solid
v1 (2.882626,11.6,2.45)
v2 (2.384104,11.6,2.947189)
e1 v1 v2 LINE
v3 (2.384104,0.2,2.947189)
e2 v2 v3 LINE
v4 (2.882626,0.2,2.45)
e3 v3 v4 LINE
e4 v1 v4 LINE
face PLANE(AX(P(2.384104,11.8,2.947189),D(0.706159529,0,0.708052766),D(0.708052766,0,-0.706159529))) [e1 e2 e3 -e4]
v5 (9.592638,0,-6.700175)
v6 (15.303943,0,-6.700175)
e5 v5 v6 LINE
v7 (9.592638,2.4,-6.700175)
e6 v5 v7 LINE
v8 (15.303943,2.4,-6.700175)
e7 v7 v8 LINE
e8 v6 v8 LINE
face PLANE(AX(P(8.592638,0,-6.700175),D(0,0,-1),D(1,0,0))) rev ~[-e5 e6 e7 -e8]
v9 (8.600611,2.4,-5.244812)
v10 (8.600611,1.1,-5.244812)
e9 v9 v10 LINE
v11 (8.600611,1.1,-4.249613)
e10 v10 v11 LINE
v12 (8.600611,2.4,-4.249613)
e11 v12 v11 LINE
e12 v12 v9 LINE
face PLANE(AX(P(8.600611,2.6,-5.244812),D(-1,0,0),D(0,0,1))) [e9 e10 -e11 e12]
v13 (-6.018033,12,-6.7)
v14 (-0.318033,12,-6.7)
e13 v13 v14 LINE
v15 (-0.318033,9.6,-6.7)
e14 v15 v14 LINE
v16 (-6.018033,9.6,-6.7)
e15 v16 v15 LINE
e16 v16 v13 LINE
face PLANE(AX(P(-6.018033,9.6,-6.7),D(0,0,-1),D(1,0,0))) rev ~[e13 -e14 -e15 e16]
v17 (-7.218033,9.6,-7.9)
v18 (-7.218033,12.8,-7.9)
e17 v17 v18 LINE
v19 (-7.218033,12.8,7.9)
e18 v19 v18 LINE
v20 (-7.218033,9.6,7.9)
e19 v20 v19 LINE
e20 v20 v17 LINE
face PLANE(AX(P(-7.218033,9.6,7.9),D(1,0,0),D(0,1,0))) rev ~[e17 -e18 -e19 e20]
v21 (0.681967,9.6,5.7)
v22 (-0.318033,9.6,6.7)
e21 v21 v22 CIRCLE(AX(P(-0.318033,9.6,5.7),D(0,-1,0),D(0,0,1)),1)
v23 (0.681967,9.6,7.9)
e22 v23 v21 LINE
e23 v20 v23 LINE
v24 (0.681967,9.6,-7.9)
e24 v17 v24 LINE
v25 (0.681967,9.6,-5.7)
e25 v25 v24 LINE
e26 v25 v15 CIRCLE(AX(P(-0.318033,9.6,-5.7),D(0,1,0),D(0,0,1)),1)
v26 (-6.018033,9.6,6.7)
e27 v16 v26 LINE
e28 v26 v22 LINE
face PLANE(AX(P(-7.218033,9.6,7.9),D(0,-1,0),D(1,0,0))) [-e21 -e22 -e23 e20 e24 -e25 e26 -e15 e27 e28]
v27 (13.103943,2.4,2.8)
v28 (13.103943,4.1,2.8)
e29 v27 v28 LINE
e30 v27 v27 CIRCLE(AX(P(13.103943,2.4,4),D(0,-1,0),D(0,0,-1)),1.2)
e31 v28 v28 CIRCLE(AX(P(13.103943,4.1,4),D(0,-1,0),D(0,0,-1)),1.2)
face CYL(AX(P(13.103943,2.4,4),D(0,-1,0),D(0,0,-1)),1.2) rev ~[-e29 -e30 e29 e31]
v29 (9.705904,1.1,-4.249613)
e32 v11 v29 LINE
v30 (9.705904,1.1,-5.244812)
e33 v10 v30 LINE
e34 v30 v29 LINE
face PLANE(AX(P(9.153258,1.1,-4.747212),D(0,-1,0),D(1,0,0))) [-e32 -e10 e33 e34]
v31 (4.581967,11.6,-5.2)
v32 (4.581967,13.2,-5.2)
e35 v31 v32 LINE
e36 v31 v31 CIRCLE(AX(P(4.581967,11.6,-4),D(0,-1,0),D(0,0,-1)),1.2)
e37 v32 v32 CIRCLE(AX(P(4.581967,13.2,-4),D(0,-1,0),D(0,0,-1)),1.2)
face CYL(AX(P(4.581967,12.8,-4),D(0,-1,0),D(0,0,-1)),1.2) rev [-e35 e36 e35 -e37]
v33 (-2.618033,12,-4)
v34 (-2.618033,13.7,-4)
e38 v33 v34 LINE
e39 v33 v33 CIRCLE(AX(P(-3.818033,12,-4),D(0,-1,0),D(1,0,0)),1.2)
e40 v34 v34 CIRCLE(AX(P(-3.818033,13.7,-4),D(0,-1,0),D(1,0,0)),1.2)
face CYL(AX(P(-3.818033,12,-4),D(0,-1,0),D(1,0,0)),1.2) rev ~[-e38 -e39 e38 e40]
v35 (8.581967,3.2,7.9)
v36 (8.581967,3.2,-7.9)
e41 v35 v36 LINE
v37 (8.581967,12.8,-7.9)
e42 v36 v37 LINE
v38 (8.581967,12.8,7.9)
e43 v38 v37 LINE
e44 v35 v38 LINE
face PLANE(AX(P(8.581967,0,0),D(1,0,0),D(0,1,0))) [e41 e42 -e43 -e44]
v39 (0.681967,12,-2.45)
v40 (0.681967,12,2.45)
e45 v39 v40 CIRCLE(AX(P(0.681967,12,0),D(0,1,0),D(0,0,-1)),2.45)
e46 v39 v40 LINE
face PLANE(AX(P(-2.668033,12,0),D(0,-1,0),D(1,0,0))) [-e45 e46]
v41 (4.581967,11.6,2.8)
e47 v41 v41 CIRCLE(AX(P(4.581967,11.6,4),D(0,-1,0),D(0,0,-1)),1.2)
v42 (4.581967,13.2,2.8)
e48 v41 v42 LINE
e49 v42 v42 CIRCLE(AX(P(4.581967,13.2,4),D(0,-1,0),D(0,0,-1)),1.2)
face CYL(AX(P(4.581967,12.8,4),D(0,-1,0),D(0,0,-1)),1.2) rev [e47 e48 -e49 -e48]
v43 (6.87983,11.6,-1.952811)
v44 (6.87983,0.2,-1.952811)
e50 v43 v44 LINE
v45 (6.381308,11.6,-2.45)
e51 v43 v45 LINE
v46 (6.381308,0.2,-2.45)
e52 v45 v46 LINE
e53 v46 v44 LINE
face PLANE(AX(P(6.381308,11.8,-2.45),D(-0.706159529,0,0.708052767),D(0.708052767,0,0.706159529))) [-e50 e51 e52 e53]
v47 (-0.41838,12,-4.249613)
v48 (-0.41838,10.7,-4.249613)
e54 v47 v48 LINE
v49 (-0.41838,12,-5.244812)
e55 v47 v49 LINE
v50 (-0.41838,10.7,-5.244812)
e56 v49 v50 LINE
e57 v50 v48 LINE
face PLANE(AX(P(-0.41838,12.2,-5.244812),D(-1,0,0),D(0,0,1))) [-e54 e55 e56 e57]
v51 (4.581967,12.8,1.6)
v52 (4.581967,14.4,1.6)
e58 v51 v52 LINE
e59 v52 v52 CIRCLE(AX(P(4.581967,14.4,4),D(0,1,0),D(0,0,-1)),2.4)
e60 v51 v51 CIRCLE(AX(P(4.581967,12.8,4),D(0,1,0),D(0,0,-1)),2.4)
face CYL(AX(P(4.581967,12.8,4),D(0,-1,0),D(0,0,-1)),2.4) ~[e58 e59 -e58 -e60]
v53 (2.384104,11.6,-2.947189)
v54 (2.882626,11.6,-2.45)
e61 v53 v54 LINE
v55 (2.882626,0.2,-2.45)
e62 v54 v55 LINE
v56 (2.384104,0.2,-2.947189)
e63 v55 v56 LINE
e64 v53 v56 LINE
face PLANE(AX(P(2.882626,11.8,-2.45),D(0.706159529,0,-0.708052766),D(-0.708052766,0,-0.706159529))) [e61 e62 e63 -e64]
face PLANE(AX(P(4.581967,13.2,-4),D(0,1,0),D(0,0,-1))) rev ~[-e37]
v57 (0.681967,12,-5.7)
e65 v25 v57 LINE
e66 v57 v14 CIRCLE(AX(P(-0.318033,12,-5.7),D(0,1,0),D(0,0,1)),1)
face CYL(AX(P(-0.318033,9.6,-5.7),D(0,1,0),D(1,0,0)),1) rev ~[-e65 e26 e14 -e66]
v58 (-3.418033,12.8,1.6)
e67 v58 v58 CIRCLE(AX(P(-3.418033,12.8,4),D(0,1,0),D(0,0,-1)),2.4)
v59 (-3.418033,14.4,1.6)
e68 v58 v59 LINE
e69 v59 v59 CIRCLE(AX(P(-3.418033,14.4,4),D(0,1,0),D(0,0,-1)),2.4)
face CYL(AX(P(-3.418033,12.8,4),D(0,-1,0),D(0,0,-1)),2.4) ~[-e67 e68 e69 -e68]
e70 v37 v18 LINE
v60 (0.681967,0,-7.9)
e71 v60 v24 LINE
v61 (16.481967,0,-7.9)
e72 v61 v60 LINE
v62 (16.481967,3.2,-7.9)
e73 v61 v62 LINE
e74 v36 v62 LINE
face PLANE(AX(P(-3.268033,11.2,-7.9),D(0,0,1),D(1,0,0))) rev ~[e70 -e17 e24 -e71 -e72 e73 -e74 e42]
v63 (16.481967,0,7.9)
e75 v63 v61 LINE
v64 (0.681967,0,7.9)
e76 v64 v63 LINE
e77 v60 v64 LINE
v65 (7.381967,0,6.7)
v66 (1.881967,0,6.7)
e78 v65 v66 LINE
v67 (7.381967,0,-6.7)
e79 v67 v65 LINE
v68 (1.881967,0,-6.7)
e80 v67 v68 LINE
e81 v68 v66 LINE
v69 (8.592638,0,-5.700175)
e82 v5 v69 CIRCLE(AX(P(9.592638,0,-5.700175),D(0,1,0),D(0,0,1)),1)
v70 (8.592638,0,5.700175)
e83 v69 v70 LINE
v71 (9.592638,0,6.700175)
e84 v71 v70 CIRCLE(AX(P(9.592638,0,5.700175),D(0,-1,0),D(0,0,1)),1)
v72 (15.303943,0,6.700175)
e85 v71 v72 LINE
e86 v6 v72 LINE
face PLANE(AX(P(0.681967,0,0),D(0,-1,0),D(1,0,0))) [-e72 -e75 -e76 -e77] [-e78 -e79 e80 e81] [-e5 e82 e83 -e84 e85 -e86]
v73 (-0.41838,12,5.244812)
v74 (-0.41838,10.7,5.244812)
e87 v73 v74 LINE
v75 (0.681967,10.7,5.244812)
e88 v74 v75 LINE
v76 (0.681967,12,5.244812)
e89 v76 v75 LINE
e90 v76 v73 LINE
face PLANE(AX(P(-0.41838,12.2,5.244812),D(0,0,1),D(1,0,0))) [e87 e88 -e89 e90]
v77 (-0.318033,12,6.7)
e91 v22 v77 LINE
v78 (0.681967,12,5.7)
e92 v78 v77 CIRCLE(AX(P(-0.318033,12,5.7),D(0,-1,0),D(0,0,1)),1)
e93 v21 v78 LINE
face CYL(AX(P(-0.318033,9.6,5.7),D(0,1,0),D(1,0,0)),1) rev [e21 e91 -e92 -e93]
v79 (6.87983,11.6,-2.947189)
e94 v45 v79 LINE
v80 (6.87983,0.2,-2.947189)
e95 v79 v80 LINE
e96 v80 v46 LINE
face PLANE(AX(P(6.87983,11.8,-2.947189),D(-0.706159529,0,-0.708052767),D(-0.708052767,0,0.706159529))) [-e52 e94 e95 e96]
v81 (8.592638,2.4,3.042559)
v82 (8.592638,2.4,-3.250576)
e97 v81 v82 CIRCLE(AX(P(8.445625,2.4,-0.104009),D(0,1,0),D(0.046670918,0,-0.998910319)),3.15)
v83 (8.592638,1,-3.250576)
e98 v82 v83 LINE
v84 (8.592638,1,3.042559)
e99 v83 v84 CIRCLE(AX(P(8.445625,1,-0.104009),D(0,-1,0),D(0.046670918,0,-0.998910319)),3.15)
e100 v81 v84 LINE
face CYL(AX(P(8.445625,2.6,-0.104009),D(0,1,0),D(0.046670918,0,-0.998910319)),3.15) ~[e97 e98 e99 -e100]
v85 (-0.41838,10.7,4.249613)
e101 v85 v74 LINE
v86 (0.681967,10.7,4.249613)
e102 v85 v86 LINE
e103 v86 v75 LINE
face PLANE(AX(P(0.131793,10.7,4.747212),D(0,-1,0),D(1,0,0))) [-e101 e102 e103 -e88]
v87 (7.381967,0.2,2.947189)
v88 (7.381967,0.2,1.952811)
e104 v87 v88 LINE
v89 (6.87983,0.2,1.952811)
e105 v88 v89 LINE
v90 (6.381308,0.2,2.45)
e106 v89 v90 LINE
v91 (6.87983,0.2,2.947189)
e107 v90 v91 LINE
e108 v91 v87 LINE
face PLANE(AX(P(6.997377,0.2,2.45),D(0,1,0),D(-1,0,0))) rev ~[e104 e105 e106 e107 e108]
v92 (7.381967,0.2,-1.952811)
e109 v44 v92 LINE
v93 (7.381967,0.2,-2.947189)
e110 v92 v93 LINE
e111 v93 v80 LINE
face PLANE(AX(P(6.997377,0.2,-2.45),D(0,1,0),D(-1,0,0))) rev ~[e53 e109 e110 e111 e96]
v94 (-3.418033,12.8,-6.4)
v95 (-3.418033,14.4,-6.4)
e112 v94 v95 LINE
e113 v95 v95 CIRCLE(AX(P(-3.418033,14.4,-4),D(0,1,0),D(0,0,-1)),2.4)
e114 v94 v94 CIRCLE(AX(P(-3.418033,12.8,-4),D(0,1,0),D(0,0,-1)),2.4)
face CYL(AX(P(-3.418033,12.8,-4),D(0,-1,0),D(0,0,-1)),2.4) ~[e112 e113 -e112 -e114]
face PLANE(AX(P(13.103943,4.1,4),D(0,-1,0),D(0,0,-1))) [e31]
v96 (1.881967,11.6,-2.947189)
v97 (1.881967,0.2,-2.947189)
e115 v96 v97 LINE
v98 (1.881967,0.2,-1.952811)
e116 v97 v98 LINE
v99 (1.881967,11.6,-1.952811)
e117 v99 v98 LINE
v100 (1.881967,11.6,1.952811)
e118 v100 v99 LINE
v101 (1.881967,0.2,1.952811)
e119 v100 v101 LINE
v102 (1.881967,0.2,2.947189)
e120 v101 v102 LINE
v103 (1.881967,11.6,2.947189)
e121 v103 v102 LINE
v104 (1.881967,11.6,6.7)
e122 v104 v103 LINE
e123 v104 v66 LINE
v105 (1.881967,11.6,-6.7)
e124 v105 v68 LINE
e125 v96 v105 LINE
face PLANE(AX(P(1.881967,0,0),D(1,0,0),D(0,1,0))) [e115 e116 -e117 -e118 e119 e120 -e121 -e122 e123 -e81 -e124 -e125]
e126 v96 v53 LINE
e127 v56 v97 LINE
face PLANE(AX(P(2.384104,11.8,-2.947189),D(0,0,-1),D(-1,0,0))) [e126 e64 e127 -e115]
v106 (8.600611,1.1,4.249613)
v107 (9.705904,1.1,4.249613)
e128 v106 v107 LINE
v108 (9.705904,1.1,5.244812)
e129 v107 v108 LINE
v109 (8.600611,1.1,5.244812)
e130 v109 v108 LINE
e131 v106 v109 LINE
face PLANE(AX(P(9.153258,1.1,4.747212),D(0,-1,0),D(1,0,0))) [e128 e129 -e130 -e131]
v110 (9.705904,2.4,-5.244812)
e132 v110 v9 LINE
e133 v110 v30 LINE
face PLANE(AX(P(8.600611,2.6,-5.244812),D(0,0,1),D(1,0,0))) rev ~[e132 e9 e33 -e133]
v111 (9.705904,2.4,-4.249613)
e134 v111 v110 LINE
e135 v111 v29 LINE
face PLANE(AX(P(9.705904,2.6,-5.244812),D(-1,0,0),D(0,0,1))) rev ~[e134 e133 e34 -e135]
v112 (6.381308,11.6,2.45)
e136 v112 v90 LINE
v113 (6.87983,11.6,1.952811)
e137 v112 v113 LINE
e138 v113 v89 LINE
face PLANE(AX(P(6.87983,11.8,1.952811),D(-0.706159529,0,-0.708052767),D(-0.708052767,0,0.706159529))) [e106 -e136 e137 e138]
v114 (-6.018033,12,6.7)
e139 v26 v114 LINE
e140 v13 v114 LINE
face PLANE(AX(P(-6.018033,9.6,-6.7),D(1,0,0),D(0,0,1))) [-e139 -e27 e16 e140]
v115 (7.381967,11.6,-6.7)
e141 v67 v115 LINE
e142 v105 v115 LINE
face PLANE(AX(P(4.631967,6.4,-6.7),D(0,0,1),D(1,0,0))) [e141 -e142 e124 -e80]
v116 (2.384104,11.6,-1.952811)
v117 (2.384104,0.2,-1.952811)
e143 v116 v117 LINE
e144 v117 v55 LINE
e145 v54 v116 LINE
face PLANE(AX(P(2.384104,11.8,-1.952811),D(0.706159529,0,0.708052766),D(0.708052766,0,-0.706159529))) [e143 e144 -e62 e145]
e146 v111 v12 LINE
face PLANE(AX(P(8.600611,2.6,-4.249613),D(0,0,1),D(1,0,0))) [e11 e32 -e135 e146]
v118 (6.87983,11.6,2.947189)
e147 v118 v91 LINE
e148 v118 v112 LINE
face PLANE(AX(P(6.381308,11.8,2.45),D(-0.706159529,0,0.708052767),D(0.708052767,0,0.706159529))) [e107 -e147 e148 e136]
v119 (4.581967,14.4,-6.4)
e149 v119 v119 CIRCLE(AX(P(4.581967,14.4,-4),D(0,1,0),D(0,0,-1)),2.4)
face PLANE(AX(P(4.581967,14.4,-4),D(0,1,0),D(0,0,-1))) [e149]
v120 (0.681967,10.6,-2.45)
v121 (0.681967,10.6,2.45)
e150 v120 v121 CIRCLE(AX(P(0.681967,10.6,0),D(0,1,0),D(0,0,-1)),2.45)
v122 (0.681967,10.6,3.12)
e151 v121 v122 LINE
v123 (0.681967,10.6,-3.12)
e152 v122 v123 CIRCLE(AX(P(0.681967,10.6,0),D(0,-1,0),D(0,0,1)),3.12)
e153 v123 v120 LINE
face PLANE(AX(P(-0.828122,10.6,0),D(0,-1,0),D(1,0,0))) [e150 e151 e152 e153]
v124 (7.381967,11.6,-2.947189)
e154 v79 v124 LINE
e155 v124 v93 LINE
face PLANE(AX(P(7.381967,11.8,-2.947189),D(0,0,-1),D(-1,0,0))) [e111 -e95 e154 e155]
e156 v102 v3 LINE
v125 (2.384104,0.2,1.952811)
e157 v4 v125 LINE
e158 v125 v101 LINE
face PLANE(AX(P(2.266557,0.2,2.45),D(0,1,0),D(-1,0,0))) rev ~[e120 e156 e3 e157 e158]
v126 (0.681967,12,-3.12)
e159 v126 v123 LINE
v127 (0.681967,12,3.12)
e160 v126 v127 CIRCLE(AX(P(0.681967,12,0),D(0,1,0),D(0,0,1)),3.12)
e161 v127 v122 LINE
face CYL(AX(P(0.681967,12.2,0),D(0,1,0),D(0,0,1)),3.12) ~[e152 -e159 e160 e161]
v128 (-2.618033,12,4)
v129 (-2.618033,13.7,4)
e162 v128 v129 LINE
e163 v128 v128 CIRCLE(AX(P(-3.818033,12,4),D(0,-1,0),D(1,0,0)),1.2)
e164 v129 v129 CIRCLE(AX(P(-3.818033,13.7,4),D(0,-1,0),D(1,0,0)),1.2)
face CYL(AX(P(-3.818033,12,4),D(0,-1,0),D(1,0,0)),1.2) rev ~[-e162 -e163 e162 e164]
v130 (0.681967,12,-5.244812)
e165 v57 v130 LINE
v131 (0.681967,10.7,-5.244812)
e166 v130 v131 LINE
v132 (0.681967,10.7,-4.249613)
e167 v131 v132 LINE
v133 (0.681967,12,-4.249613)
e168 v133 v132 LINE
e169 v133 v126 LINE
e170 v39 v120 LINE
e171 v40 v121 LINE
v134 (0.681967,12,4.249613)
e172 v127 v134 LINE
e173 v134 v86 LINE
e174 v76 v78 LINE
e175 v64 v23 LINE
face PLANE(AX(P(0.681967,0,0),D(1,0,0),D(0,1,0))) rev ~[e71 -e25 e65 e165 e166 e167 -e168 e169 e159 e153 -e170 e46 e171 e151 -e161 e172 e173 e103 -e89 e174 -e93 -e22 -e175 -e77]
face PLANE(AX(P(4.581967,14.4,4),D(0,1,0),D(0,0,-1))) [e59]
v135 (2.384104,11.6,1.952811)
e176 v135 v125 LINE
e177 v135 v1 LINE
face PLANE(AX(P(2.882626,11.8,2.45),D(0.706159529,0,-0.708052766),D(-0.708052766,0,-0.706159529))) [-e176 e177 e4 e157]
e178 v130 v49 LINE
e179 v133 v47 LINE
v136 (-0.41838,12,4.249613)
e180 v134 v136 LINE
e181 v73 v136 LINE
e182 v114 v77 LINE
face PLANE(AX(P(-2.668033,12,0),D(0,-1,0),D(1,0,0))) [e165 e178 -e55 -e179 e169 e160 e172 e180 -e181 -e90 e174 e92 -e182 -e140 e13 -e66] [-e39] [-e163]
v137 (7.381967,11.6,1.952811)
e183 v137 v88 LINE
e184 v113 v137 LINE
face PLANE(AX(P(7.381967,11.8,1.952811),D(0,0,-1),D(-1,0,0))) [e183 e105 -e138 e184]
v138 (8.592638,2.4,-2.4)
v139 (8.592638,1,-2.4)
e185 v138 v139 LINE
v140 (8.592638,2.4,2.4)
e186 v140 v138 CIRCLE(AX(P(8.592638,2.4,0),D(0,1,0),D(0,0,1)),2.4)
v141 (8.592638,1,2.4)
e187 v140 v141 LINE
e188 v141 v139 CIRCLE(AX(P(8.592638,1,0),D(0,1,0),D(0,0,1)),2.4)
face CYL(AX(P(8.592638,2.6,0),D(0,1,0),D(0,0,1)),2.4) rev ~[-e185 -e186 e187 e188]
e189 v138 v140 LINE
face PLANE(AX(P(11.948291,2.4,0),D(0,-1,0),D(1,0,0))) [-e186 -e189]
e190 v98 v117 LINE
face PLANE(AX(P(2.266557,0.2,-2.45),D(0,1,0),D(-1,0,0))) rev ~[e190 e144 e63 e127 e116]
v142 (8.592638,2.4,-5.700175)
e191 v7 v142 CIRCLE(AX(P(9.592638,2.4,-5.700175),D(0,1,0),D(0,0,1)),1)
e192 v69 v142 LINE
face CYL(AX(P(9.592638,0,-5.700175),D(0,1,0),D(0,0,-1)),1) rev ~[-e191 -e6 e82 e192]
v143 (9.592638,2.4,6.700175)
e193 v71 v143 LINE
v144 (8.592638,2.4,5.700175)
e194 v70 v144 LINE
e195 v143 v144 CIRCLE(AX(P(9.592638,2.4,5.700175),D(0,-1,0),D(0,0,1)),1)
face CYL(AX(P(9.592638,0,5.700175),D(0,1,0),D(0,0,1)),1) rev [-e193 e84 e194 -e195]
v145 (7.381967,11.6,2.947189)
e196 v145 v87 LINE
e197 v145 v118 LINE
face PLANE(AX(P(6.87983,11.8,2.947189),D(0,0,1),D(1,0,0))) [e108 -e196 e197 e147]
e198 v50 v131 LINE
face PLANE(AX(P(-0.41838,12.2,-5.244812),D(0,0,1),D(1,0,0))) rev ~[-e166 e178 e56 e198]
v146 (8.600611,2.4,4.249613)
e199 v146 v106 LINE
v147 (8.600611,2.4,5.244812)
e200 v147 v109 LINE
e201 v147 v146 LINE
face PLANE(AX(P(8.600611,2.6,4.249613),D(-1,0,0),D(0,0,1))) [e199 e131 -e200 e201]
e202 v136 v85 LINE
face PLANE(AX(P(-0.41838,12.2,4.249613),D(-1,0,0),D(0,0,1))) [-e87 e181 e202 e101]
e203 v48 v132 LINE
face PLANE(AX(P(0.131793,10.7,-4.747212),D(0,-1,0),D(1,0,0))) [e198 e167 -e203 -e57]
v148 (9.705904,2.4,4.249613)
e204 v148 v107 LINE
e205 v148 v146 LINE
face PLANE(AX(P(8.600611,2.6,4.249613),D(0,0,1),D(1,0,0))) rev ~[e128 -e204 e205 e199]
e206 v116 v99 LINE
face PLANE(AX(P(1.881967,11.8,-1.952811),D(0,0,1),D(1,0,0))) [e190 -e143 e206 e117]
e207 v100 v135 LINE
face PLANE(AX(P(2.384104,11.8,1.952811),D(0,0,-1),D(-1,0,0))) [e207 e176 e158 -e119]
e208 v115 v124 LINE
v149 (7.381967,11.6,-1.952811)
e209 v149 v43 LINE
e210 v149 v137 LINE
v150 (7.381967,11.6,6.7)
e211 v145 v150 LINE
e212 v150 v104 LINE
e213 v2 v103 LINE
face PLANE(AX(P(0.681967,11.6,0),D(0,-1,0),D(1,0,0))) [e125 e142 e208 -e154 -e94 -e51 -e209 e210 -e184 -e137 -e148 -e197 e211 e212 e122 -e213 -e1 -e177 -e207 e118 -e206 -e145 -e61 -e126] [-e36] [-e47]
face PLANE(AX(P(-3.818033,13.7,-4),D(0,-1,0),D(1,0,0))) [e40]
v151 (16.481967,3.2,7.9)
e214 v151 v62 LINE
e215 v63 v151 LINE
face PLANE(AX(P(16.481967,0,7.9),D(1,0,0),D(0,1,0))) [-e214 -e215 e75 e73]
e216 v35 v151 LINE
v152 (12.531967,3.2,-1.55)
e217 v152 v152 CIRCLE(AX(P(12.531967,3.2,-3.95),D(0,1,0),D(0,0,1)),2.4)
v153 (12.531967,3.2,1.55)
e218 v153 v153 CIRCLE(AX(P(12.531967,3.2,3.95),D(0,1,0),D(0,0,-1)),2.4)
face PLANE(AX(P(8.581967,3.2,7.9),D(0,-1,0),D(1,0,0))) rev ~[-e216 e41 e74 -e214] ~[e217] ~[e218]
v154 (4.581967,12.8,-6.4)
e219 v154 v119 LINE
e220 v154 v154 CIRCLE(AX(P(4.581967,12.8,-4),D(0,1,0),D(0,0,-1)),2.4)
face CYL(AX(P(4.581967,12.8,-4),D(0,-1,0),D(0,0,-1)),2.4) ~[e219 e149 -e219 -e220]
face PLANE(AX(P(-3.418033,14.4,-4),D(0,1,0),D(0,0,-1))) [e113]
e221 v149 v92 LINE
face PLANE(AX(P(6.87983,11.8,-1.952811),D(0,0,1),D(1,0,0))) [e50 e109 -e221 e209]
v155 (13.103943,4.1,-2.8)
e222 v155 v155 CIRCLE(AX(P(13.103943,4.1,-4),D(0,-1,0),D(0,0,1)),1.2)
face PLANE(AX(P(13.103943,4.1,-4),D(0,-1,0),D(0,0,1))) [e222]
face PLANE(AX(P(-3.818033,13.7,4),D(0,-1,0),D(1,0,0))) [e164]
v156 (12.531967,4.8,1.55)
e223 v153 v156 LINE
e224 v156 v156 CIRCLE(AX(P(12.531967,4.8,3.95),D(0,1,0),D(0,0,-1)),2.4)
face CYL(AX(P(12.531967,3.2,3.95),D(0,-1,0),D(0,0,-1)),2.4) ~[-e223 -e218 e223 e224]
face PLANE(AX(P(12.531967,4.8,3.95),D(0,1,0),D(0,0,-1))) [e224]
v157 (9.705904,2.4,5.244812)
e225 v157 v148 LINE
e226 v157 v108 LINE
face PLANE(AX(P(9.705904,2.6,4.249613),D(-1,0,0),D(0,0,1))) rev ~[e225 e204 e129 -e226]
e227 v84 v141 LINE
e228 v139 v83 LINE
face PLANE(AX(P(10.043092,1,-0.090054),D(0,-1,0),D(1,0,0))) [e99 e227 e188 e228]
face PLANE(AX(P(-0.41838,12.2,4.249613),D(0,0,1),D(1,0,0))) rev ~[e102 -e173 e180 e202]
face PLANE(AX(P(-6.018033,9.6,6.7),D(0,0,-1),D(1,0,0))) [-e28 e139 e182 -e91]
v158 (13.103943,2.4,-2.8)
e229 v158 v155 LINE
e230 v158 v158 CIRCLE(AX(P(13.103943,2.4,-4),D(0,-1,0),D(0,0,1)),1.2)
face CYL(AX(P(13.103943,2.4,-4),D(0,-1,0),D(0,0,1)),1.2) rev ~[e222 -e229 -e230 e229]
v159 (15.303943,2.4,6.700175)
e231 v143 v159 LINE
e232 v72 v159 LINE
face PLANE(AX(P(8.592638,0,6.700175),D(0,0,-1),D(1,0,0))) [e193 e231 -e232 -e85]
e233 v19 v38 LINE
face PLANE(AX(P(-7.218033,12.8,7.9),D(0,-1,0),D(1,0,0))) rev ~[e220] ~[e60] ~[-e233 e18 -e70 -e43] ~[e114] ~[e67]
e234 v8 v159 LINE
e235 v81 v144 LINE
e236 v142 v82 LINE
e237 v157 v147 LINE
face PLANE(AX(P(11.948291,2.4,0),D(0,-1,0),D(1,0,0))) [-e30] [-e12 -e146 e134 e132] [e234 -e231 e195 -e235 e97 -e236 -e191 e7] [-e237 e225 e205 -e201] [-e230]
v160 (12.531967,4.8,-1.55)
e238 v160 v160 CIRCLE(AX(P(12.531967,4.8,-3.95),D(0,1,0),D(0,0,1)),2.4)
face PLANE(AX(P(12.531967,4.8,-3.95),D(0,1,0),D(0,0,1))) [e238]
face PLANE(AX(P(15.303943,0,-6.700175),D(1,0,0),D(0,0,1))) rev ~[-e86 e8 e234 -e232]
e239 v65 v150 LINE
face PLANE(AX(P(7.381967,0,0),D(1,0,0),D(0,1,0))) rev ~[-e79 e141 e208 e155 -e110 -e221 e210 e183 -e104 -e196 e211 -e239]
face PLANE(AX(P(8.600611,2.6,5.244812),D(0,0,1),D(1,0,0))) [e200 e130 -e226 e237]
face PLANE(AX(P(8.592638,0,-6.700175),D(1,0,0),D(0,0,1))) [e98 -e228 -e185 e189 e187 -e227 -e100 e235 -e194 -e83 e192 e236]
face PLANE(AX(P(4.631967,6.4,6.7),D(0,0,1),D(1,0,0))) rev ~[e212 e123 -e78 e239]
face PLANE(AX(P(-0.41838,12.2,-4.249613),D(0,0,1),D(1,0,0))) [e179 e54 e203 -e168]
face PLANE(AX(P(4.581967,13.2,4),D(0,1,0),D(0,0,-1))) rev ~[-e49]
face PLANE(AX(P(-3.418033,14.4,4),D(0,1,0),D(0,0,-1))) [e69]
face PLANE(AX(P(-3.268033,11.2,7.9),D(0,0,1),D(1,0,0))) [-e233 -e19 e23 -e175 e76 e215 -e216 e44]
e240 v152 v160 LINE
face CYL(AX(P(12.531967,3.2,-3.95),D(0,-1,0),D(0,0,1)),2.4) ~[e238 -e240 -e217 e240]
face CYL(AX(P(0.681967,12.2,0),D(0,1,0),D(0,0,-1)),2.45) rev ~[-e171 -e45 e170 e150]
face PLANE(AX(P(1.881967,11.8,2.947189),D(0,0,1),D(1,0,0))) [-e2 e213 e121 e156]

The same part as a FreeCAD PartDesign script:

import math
import FreeCAD as App
import Part
import Sketcher
from FreeCAD import Vector


def edges_at(feature, points):
    """Names of the edges that pass closest to the given points."""
    edges = feature.Shape.Edges
    near = lambda p: min(range(len(edges)), key=lambda i: edges[i].distToShape(Part.Vertex(*p))[0])
    return sorted({f"Edge{near(p) + 1}" for p in points})


def faces_at(feature, points):
    """Names of the faces that lie closest to the given points."""
    faces = feature.Shape.Faces
    near = lambda p: min(range(len(faces)), key=lambda i: faces[i].distToShape(Part.Vertex(*p))[0])
    return sorted({f"Face{near(p) + 1}" for p in points})


def add_polygon(sketch, points):
    """Adds a closed chain of lines whose ends are joined by coincident constraints."""
    first, n = sketch.GeometryCount, len(points)
    for a, b in zip(points, points[1:] + points[:1]):
        sketch.addGeometry(Part.LineSegment(App.Vector(*a, 0), App.Vector(*b, 0)), False)
    for i in range(n):
        sketch.addConstraint(Sketcher.Constraint("Coincident", first + i, 2, first + (i + 1) % n, 1))

doc = App.newDocument("Part")
body = doc.addObject("PartDesign::Body", "Body")

# Sketch on XY plane
sketch1 = doc.addObject("Sketcher::SketchObject", "Sketch")
body.addObject(sketch1)
sketch1.AttachmentSupport = (doc.XY_Plane, [""])
sketch1.MapMode = "FlatFace"
add_polygon(sketch1, [(1, 13), (1, 0), (9, 0), (9, 13)])  # lines 0-3
sketch1.addConstraint([
    Sketcher.Constraint("Vertical", 0),
    Sketcher.Constraint("Horizontal", 1),
    Sketcher.Constraint("Vertical", 2),
    Sketcher.Constraint("Horizontal", 3),
    Sketcher.Constraint("PointOnObject", 0, 2, -1),
    Sketcher.Constraint("DistanceX", 1, 1, 1, 2, 7.9),
    Sketcher.Constraint("DistanceY", 0, 2, 0, 1, 12.8),
    Sketcher.Constraint("DistanceX", -1, 1, 0, 2, 0.681967),
])
pad1 = doc.addObject("PartDesign::Pad", "Pad")
body.addObject(pad1)
pad1.Profile = sketch1
pad1.Length = 15.8
pad1.Midplane = True

# Sketch on XZ plane
sketch2 = doc.addObject("Sketcher::SketchObject", "Sketch001")
body.addObject(sketch2)
sketch2.AttachmentSupport = (doc.XZ_Plane, [""])
sketch2.MapMode = "FlatFace"
sketch2.AttachmentOffset = App.Placement(Vector(0, 0, -12.8), App.Rotation())
sketch2.addGeometry(Part.Circle(Vector(4.6, -4, 0), Vector(0, 0, 1), 2.4), False)
sketch2.addConstraint([
    Sketcher.Constraint("Diameter", 0, 4.8),
    Sketcher.Constraint("DistanceY", 0, 3, -1, 1, 4.0),
    Sketcher.Constraint("DistanceX", -1, 1, 0, 3, 4.581967),
])
pad2 = doc.addObject("PartDesign::Pad", "Pad001")
body.addObject(pad2)
pad2.Profile = sketch2
pad2.Length = 1.6
pad2.Reversed = True
doc.recompute()

linearpattern = doc.addObject("PartDesign::LinearPattern", "LinearPattern")
body.addObject(linearpattern)
linearpattern.Originals = [pad2]
linearpattern.Direction = (doc.Z_Axis, [""])
linearpattern.Mode = "offset"
linearpattern.Offset = 8
linearpattern.Occurrences = 2
body.Tip = linearpattern
doc.recompute()

thickness = doc.addObject("PartDesign::Thickness", "Thickness")
body.addObject(thickness)
thickness.Base = (linearpattern, faces_at(linearpattern, [(4.632, 0, 0)]))
thickness.Value = 1.2
thickness.Reversed = True
thickness.Join = "Intersection"

# Sketch on XZ plane
sketch3 = doc.addObject("Sketcher::SketchObject", "Sketch002")
body.addObject(sketch3)
sketch3.AttachmentSupport = (doc.XZ_Plane, [""])
sketch3.MapMode = "FlatFace"
sketch3.AttachmentOffset = App.Placement(Vector(0, 0, -11.8), App.Rotation())
add_polygon(sketch3, [(1.9, 2.9), (1.9, 2), (2.4, 2), (2.9, 2.5), (2.4, 2.9)])  # lines 0-4
add_polygon(sketch3, [(6.9, 2.9), (6.4, 2.5), (6.9, 2), (7.4, 2), (7.4, 2.9)])  # lines 5-9
add_polygon(sketch3, [(2.4, -2), (1.9, -2), (1.9, -2.9), (2.4, -2.9), (2.9, -2.5)])  # lines 10-14
add_polygon(sketch3, [(7.4, -2.9), (7.4, -2), (6.9, -2), (6.4, -2.5), (6.9, -2.9)])  # lines 15-19
sketch3.addConstraint([
    Sketcher.Constraint("Vertical", 0),
    Sketcher.Constraint("Horizontal", 1),
    Sketcher.Constraint("Horizontal", 4),
    Sketcher.Constraint("Horizontal", 7),
    Sketcher.Constraint("Vertical", 8),
    Sketcher.Constraint("Horizontal", 9),
    Sketcher.Constraint("Horizontal", 10),
    Sketcher.Constraint("Vertical", 11),
    Sketcher.Constraint("Horizontal", 12),
    Sketcher.Constraint("Vertical", 15),
    Sketcher.Constraint("Horizontal", 16),
    Sketcher.Constraint("Horizontal", 19),
    Sketcher.Constraint("Symmetric", 0, 2, 10, 2, -1),
    Sketcher.Constraint("Symmetric", 3, 2, 12, 2, -1),
    Sketcher.Constraint("Symmetric", 2, 2, 13, 2, -1),
    Sketcher.Constraint("Symmetric", 7, 2, 15, 2, -1),
    Sketcher.Constraint("Symmetric", 5, 2, 17, 2, -1),
    Sketcher.Constraint("Symmetric", 9, 2, 18, 2, -1),
    Sketcher.Constraint("Parallel", 2, 5),
    Sketcher.Constraint("Parallel", 3, 6),
    Sketcher.Constraint("Parallel", 5, 13),
    Sketcher.Constraint("Parallel", 6, 14),
    Sketcher.Constraint("Parallel", 13, 17),
    Sketcher.Constraint("Horizontal", 2, 2, 5, 2),
    Sketcher.Constraint("Horizontal", 1, 2, 6, 2),
    Sketcher.Constraint("Horizontal", 4, 2, 8, 2),
    Sketcher.Constraint("Vertical", 1, 2, 3, 2),
    Sketcher.Constraint("Equal", 4, 7),
    Sketcher.Constraint("DistanceY", 10, 2, 4, 2, 4.9),
    Sketcher.Constraint("DistanceX", 1, 1, 1, 2, 0.502137),
    Sketcher.Constraint("DistanceY", 0, 2, 0, 1, 0.994377),
    Sketcher.Constraint("DistanceX", -1, 1, 5, 2, 6.381308),
    Sketcher.Constraint("DistanceX", -1, 1, 6, 2, 6.87983),
    Sketcher.Constraint("DistanceX", 0, 2, 5, 2, 4.499341),
])
pad3 = doc.addObject("PartDesign::Pad", "Pad002")
body.addObject(pad3)
pad3.Profile = sketch3
pad3.Length = 11.6

# Sketch on XY plane
sketch4 = doc.addObject("Sketcher::SketchObject", "Sketch003")
body.addObject(sketch4)
sketch4.AttachmentSupport = (doc.XY_Plane, [""])
sketch4.MapMode = "FlatFace"
sketch4.AttachmentOffset = App.Placement(Vector(0, 0, 7.9), App.Rotation())
add_polygon(sketch4, [(-7.2, 12.8), (-7.2, 9.6), (0.7, 9.6), (0.7, 12.8)])  # lines 0-3
add_polygon(sketch4, [(8.6, 3.2), (8.6, 0), (16.5, 0), (16.5, 3.2)])  # lines 4-7
sketch4.addConstraint([
    Sketcher.Constraint("Vertical", 0),
    Sketcher.Constraint("Horizontal", 1),
    Sketcher.Constraint("Vertical", 2),
    Sketcher.Constraint("Horizontal", 3),
    Sketcher.Constraint("Vertical", 4),
    Sketcher.Constraint("Horizontal", 5),
    Sketcher.Constraint("Vertical", 6),
    Sketcher.Constraint("Horizontal", 7),
    Sketcher.Constraint("PointOnObject", 4, 2, -1),
    Sketcher.Constraint("Equal", 3, 5),
    Sketcher.Constraint("Equal", 2, 4),
    Sketcher.Constraint("DistanceX", 1, 1, 1, 2, 7.9),
    Sketcher.Constraint("DistanceY", 0, 2, 0, 1, 3.2),
    Sketcher.Constraint("DistanceY", -1, 1, 0, 2, 9.6),
    Sketcher.Constraint("DistanceX", 1, 2, 4, 2, 7.9),
    Sketcher.Constraint("DistanceX", 0, 2, -1, 1, 7.218033),
])
pad4 = doc.addObject("PartDesign::Pad", "Pad003")
body.addObject(pad4)
pad4.Profile = sketch4
pad4.Length = 15.8
pad4.Reversed = True
doc.recompute()

linearpattern2 = doc.addObject("PartDesign::LinearPattern", "LinearPattern001")
body.addObject(linearpattern2)
linearpattern2.Originals = [pad2]
linearpattern2.Direction = (doc.X_Axis, [""])
linearpattern2.Mode = "offset"
linearpattern2.Offset = 8
linearpattern2.Occurrences = 2
linearpattern2.Reversed = True
body.Tip = linearpattern2

# Sketch on XZ plane
sketch5 = doc.addObject("Sketcher::SketchObject", "Sketch004")
body.addObject(sketch5)
sketch5.AttachmentSupport = (doc.XZ_Plane, [""])
sketch5.MapMode = "FlatFace"
sketch5.AttachmentOffset = App.Placement(Vector(0, 0, -12.8), App.Rotation())
sketch5.addGeometry(Part.Circle(Vector(-3.4, 4, 0), Vector(0, 0, 1), 2.4), False)
sketch5.addConstraint([
    Sketcher.Constraint("Diameter", 0, 4.8),
    Sketcher.Constraint("DistanceY", -1, 1, 0, 3, 4.0),
    Sketcher.Constraint("DistanceX", 0, 3, -1, 1, 3.418033),
])
pad5 = doc.addObject("PartDesign::Pad", "Pad004")
body.addObject(pad5)
pad5.Profile = sketch5
pad5.Length = 1.6
pad5.Reversed = True

# Sketch on XZ plane
sketch6 = doc.addObject("Sketcher::SketchObject", "Sketch005")
body.addObject(sketch6)
sketch6.AttachmentSupport = (doc.XZ_Plane, [""])
sketch6.MapMode = "FlatFace"
sketch6.AttachmentOffset = App.Placement(Vector(0, 0, -3.2), App.Rotation())
sketch6.addGeometry([
    Part.Circle(Vector(12.5, -4, 0), Vector(0, 0, 1), 2.4),
    Part.Circle(Vector(12.5, 4, 0), Vector(0, 0, 1), 2.4),
], False)
sketch6.addConstraint([
    Sketcher.Constraint("Equal", 0, 1),
    Sketcher.Constraint("Symmetric", 0, 3, 1, 3, -1),
    Sketcher.Constraint("Diameter", 0, 4.8),
    Sketcher.Constraint("DistanceY", 0, 3, 1, 3, 7.9),
    Sketcher.Constraint("DistanceX", -1, 1, 0, 3, 12.531967),
])
pad6 = doc.addObject("PartDesign::Pad", "Pad005")
body.addObject(pad6)
pad6.Profile = sketch6
pad6.Length = 1.6
pad6.Reversed = True

# Sketch on XZ plane
sketch7 = doc.addObject("Sketcher::SketchObject", "Sketch006")
body.addObject(sketch7)
sketch7.AttachmentSupport = (doc.XZ_Plane, [""])
sketch7.MapMode = "FlatFace"
add_polygon(sketch7, [(9, 7), (9, -7), (15, -7), (15, 7)])  # lines 0-3
sketch7.addConstraint([
    Sketcher.Constraint("Vertical", 0),
    Sketcher.Constraint("Horizontal", 1),
    Sketcher.Constraint("Vertical", 2),
    Sketcher.Constraint("Horizontal", 3),
    Sketcher.Constraint("DistanceY", 0, 2, 0, 1, 13.40035),
    Sketcher.Constraint("DistanceX", 1, 1, 1, 2, 6.711305),
    Sketcher.Constraint("DistanceX", -1, 1, 0, 2, 8.592638),
    Sketcher.Constraint("DistanceY", 0, 2, -1, 1, 6.700175),
])
pocket1 = doc.addObject("PartDesign::Pocket", "Pocket")
body.addObject(pocket1)
pocket1.Profile = sketch7
pocket1.Length = 2.4

# Sketch on XZ plane
sketch8 = doc.addObject("Sketcher::SketchObject", "Sketch007")
body.addObject(sketch8)
sketch8.AttachmentSupport = (doc.XZ_Plane, [""])
sketch8.MapMode = "FlatFace"
sketch8.AttachmentOffset = App.Placement(Vector(0, 0, -2.4), App.Rotation())
sketch8.addGeometry([
    Part.Circle(Vector(13.1, 4, 0), Vector(0, 0, 1), 1.2),
    Part.Circle(Vector(13.1, -4, 0), Vector(0, 0, 1), 1.2),
], False)
sketch8.addConstraint([
    Sketcher.Constraint("Equal", 0, 1),
    Sketcher.Constraint("Symmetric", 0, 3, 1, 3, -1),
    Sketcher.Constraint("Diameter", 0, 2.4),
    Sketcher.Constraint("DistanceY", -1, 1, 0, 3, 4.0),
    Sketcher.Constraint("DistanceX", -1, 1, 0, 3, 13.103943),
])
pocket2 = doc.addObject("PartDesign::Pocket", "Pocket001")
body.addObject(pocket2)
pocket2.Profile = sketch8
pocket2.Length = 1.7

# Sketch on XZ plane
sketch9 = doc.addObject("Sketcher::SketchObject", "Sketch008")
body.addObject(sketch9)
sketch9.AttachmentSupport = (doc.XZ_Plane, [""])
sketch9.MapMode = "FlatFace"
sketch9.AttachmentOffset = App.Placement(Vector(0, 0, -2.6), App.Rotation())
sketch9.addGeometry([
    Part.ArcOfCircle(Part.Circle(Vector(8.4, -0.1, 0), Vector(0, 0, 1), 3.1), math.radians(-87), math.radians(87)),
    Part.LineSegment(Vector(8.6, 3, 0), Vector(8.6, 2.4, 0)),
    Part.ArcOfCircle(Part.Circle(Vector(8.6, 0, 0), Vector(0, 0, 1), 2.4), math.radians(-90), math.radians(90)),
    Part.LineSegment(Vector(8.6, -2.4, 0), Vector(8.6, -3.3, 0)),
], False)
sketch9.addConstraint([
    Sketcher.Constraint("Coincident", 0, 2, 1, 1),
    Sketcher.Constraint("Coincident", 1, 2, 2, 2),
    Sketcher.Constraint("Coincident", 2, 1, 3, 1),
    Sketcher.Constraint("Coincident", 3, 2, 0, 1),
    Sketcher.Constraint("Vertical", 1),
    Sketcher.Constraint("Vertical", 3),
    Sketcher.Constraint("Symmetric", 1, 2, 2, 1, -1),
    Sketcher.Constraint("Vertical", 2, 3, 0, 2),
    Sketcher.Constraint("Radius", 2, 2.4),
    Sketcher.Constraint("Radius", 0, 3.15),
    Sketcher.Constraint("DistanceY", 1, 2, 1, 1, 0.642559),
    Sketcher.Constraint("DistanceY", 3, 2, 3, 1, 0.850576),
    Sketcher.Constraint("DistanceX", -1, 1, 2, 3, 8.592638),
])
pad7 = doc.addObject("PartDesign::Pad", "Pad006")
body.addObject(pad7)
pad7.Profile = sketch9
pad7.Length = 1.6

# Sketch on XZ plane
sketch10 = doc.addObject("Sketcher::SketchObject", "Sketch009")
body.addObject(sketch10)
sketch10.AttachmentSupport = (doc.XZ_Plane, [""])
sketch10.MapMode = "FlatFace"
sketch10.AttachmentOffset = App.Placement(Vector(0, 0, -9.6), App.Rotation())
add_polygon(sketch10, [(-6, 7), (-6, -7), (1, -7), (1, 7)])  # lines 0-3
sketch10.addConstraint([
    Sketcher.Constraint("Vertical", 0),
    Sketcher.Constraint("Horizontal", 1),
    Sketcher.Constraint("Vertical", 2),
    Sketcher.Constraint("Horizontal", 3),
    Sketcher.Constraint("DistanceX", 1, 1, 1, 2, 6.7),
    Sketcher.Constraint("DistanceY", 0, 2, 0, 1, 13.4),
    Sketcher.Constraint("DistanceY", 0, 2, -1, 1, 6.7),
    Sketcher.Constraint("DistanceX", 0, 2, -1, 1, 6.018033),
])
pocket3 = doc.addObject("PartDesign::Pocket", "Pocket002")
body.addObject(pocket3)
pocket3.Profile = sketch10
pocket3.Length = 2.4

# Sketch on XZ plane
sketch11 = doc.addObject("Sketcher::SketchObject", "Sketch010")
body.addObject(sketch11)
sketch11.AttachmentSupport = (doc.XZ_Plane, [""])
sketch11.MapMode = "FlatFace"
sketch11.AttachmentOffset = App.Placement(Vector(0, 0, -12.2), App.Rotation())
sketch11.addGeometry([
    Part.LineSegment(Vector(0.7, -3.1, 0), Vector(0.7, -2.5, 0)),
    Part.ArcOfCircle(Part.Circle(Vector(0.7, 0, 0), Vector(0, 0, 1), 2.5), math.radians(90), math.radians(270)),
    Part.LineSegment(Vector(0.7, 2.5, 0), Vector(0.7, 3.1, 0)),
    Part.ArcOfCircle(Part.Circle(Vector(0.7, 0, 0), Vector(0, 0, 1), 3.1), math.radians(90), math.radians(270)),
], False)
sketch11.addConstraint([
    Sketcher.Constraint("Coincident", 0, 2, 1, 2),
    Sketcher.Constraint("Coincident", 1, 1, 2, 1),
    Sketcher.Constraint("Coincident", 2, 2, 3, 1),
    Sketcher.Constraint("Coincident", 3, 2, 0, 1),
    Sketcher.Constraint("Vertical", 0),
    Sketcher.Constraint("Vertical", 2),
    Sketcher.Constraint("Coincident", 3, 3, 1, 3),
    Sketcher.Constraint("Symmetric", 0, 2, 1, 1, -1),
    Sketcher.Constraint("Vertical", 3, 3, 0, 2),
    Sketcher.Constraint("Radius", 1, 2.45),
    Sketcher.Constraint("Radius", 3, 3.12),
    Sketcher.Constraint("DistanceX", -1, 1, 1, 3, 0.681967),
])
pad8 = doc.addObject("PartDesign::Pad", "Pad007")
body.addObject(pad8)
pad8.Profile = sketch11
pad8.Length = 1.6
doc.recompute()

fillet = doc.addObject("PartDesign::Fillet", "Fillet")
body.addObject(fillet)
fillet.Base = (pad8, edges_at(pad8, [(8.593, 1.2, -6.7), (8.593, 1.2, 6.7)]))
fillet.Radius = 1
doc.recompute()

fillet2 = doc.addObject("PartDesign::Fillet", "Fillet001")
body.addObject(fillet2)
fillet2.Base = (fillet, edges_at(fillet, [(0.682, 10.8, -6.7), (0.682, 10.8, 6.7)]))
fillet2.Radius = 1

# Sketch on XZ plane
sketch12 = doc.addObject("Sketcher::SketchObject", "Sketch011")
body.addObject(sketch12)
sketch12.AttachmentSupport = (doc.XZ_Plane, [""])
sketch12.MapMode = "FlatFace"
sketch12.AttachmentOffset = App.Placement(Vector(0, 0, -12), App.Rotation())
sketch12.addGeometry([
    Part.Circle(Vector(-3.8, 4, 0), Vector(0, 0, 1), 1.2),
    Part.Circle(Vector(-3.8, -4, 0), Vector(0, 0, 1), 1.2),
], False)
sketch12.addConstraint([
    Sketcher.Constraint("Equal", 0, 1),
    Sketcher.Constraint("Symmetric", 0, 3, 1, 3, -1),
    Sketcher.Constraint("Diameter", 0, 2.4),
    Sketcher.Constraint("DistanceY", -1, 1, 0, 3, 4.0),
    Sketcher.Constraint("DistanceX", 0, 3, -1, 1, 3.818033),
])
pocket4 = doc.addObject("PartDesign::Pocket", "Pocket003")
body.addObject(pocket4)
pocket4.Profile = sketch12
pocket4.Length = 1.7

# Sketch on XZ plane
sketch13 = doc.addObject("Sketcher::SketchObject", "Sketch012")
body.addObject(sketch13)
sketch13.AttachmentSupport = (doc.XZ_Plane, [""])
sketch13.MapMode = "FlatFace"
sketch13.AttachmentOffset = App.Placement(Vector(0, 0, -12.2), App.Rotation())
add_polygon(sketch13, [(-0.4, 5.2), (-0.4, 4.2), (0.7, 4.2), (0.7, 5.2)])  # lines 0-3
add_polygon(sketch13, [(-0.4, -4.2), (-0.4, -5.2), (0.7, -5.2), (0.7, -4.2)])  # lines 4-7
sketch13.addConstraint([
    Sketcher.Constraint("Vertical", 0),
    Sketcher.Constraint("Horizontal", 1),
    Sketcher.Constraint("Vertical", 2),
    Sketcher.Constraint("Horizontal", 3),
    Sketcher.Constraint("Vertical", 4),
    Sketcher.Constraint("Horizontal", 5),
    Sketcher.Constraint("Vertical", 6),
    Sketcher.Constraint("Horizontal", 7),
    Sketcher.Constraint("Symmetric", 3, 2, 4, 2, -1),
    Sketcher.Constraint("Symmetric", 1, 2, 6, 2, -1),
    Sketcher.Constraint("DistanceY", 0, 2, 0, 1, 0.995199),
    Sketcher.Constraint("DistanceX", 1, 1, 1, 2, 1.100348),
    Sketcher.Constraint("DistanceX", 0, 2, -1, 1, 0.41838),
    Sketcher.Constraint("DistanceY", -1, 1, 2, 2, 5.244812),
])
pad9 = doc.addObject("PartDesign::Pad", "Pad008")
body.addObject(pad9)
pad9.Profile = sketch13
pad9.Length = 1.5

# Sketch on XZ plane
sketch14 = doc.addObject("Sketcher::SketchObject", "Sketch013")
body.addObject(sketch14)
sketch14.AttachmentSupport = (doc.XZ_Plane, [""])
sketch14.MapMode = "FlatFace"
sketch14.AttachmentOffset = App.Placement(Vector(0, 0, -2.6), App.Rotation())
add_polygon(sketch14, [(8.6, 5.2), (8.6, 4.2), (9.7, 4.2), (9.7, 5.2)])  # lines 0-3
add_polygon(sketch14, [(8.6, -4.2), (8.6, -5.2), (9.7, -5.2), (9.7, -4.2)])  # lines 4-7
sketch14.addConstraint([
    Sketcher.Constraint("Vertical", 0),
    Sketcher.Constraint("Horizontal", 1),
    Sketcher.Constraint("Vertical", 2),
    Sketcher.Constraint("Horizontal", 3),
    Sketcher.Constraint("Vertical", 4),
    Sketcher.Constraint("Horizontal", 5),
    Sketcher.Constraint("Vertical", 6),
    Sketcher.Constraint("Horizontal", 7),
    Sketcher.Constraint("Symmetric", 3, 2, 4, 2, -1),
    Sketcher.Constraint("Symmetric", 1, 2, 6, 2, -1),
    Sketcher.Constraint("DistanceY", 0, 2, 0, 1, 0.995199),
    Sketcher.Constraint("DistanceX", 1, 1, 1, 2, 1.105293),
    Sketcher.Constraint("DistanceX", -1, 1, 0, 2, 8.600611),
    Sketcher.Constraint("DistanceY", -1, 1, 2, 2, 5.244812),
])
pad10 = doc.addObject("PartDesign::Pad", "Pad009")
body.addObject(pad10)
pad10.Profile = sketch14
pad10.Length = 1.5

doc.recompute()
